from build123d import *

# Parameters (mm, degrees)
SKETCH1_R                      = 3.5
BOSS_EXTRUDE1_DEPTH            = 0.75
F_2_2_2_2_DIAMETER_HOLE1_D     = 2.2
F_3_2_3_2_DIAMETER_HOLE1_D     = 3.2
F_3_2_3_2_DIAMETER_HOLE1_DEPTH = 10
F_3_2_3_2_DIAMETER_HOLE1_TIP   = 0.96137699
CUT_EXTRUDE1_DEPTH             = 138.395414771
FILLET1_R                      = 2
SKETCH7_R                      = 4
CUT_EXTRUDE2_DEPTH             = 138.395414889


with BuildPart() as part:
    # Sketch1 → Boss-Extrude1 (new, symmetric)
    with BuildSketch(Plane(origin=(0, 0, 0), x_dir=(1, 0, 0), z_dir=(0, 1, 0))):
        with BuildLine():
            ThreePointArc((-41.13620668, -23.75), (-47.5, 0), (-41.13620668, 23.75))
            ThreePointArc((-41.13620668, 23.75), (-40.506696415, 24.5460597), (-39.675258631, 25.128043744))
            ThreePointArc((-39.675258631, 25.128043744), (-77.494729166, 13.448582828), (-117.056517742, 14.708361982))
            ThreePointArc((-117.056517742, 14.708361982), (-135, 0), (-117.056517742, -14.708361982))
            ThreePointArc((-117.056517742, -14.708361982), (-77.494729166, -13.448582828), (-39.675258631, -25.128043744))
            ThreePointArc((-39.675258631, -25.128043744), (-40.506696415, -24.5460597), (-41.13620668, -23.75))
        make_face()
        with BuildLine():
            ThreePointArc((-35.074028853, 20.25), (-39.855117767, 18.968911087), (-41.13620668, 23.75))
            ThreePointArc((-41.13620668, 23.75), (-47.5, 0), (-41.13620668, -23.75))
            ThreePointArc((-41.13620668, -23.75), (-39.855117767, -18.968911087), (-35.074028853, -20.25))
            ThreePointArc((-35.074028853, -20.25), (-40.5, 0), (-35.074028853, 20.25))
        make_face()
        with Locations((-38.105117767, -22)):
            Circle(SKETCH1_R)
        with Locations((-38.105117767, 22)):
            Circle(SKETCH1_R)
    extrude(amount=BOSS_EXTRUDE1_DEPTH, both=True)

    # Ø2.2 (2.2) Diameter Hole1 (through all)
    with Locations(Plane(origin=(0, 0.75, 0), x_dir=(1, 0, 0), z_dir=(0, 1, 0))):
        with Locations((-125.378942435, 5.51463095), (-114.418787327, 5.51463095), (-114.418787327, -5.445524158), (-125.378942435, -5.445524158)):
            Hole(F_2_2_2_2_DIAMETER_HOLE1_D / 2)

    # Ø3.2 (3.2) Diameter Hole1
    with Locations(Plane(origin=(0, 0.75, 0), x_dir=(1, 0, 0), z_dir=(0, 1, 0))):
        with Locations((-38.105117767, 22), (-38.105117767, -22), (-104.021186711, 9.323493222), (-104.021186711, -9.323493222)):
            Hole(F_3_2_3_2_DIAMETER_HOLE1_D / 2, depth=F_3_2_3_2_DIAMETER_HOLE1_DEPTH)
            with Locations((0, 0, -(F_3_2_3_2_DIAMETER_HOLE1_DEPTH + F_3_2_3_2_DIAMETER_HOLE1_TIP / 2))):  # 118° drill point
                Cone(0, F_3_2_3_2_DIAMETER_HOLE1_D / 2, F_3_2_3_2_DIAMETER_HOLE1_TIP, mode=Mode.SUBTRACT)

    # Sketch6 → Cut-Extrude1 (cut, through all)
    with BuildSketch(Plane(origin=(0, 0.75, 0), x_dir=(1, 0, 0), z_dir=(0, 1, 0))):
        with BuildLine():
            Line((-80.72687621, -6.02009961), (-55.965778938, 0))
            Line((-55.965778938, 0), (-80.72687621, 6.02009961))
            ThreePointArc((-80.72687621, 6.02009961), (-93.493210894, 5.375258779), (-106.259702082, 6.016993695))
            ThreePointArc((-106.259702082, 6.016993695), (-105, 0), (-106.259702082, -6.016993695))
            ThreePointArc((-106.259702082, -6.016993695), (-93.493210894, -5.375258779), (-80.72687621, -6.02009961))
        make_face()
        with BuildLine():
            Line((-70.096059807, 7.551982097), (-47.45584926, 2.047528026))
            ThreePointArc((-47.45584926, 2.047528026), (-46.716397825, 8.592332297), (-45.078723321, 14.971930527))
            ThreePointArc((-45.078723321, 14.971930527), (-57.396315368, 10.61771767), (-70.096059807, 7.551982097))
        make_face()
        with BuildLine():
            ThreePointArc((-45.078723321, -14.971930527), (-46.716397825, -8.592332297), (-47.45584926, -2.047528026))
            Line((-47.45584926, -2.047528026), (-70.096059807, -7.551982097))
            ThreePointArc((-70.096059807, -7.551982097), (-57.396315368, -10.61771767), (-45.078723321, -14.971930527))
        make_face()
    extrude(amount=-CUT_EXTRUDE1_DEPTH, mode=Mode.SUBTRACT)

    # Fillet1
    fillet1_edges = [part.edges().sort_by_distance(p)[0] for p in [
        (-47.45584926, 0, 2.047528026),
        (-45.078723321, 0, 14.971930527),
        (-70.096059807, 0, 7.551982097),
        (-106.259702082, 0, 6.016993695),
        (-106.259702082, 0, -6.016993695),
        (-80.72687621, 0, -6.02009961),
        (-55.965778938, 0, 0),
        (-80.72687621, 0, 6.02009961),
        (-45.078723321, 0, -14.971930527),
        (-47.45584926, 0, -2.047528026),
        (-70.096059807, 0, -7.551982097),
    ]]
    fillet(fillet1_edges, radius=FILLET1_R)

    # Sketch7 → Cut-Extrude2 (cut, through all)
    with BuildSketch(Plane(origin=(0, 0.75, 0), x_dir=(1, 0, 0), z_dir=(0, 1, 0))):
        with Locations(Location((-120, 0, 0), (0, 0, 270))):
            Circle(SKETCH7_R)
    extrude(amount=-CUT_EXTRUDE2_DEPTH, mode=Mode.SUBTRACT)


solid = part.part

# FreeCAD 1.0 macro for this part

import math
import FreeCAD as App
import Part
import Sketcher
from FreeCAD import Vector
Q = App.Units.Quantity


def edges_at(feature, points):
    """Names of the edges that pass closest to the given points."""
    edges = feature.Shape.Edges
    near = lambda p: min(range(len(edges)), key=lambda i: edges[i].distToShape(Part.Vertex(*p))[0])
    return sorted({f"Edge{near(p) + 1}" for p in points})

doc = App.newDocument("Part")
body = doc.addObject("PartDesign::Body", "Body")

# Sketch on XZ plane
sketch1 = doc.addObject("Sketcher::SketchObject", "Sketch")
body.addObject(sketch1)
sketch1.AttachmentSupport = (doc.XZ_Plane, [""])
sketch1.MapMode = "FlatFace"
sketch1.addGeometry(Part.ArcOfCircle(Part.Circle(Vector(-93.50866, -132.375258, 0), Vector(0, 0, 1), 120), math.radians(63.345355), math.radians(101.316711)), False)
sketch1.addGeometry(Part.ArcOfCircle(Part.Circle(Vector(-120, 0, 0), Vector(0, 0, 1), 15), math.radians(78.683289), math.radians(281.316711)), False)
sketch1.addGeometry(Part.ArcOfCircle(Part.Circle(Vector(-93.50866, 132.375258, 0), Vector(0, 0, 1), 120), math.radians(-101.316711), math.radians(-63.345355)), False)
sketch1.addGeometry(Part.ArcOfCircle(Part.Circle(Vector(-38.105118, 22, 0), Vector(0, 0, 1), 3.5), math.radians(-30), math.radians(116.654645)), False)
sketch1.addGeometry(Part.ArcOfCircle(Part.Circle(Vector(0, 0, 0), Vector(0, 0, 1), 40.5), math.radians(150), math.radians(210)), False)
sketch1.addGeometry(Part.ArcOfCircle(Part.Circle(Vector(-38.105118, -22, 0), Vector(0, 0, 1), 3.5), math.radians(-116.654645), math.radians(30)), False)
sketch1.addConstraint(Sketcher.Constraint("Tangent", 0, 2, 1, 2))
sketch1.addConstraint(Sketcher.Constraint("Tangent", 1, 1, 2, 1))
sketch1.addConstraint(Sketcher.Constraint("Tangent", 2, 2, 3, 2))
sketch1.addConstraint(Sketcher.Constraint("Tangent", 3, 1, 4, 1))
sketch1.addConstraint(Sketcher.Constraint("Tangent", 4, 2, 5, 2))
sketch1.addConstraint(Sketcher.Constraint("Tangent", 5, 1, 0, 1))
sketch1.addConstraint(Sketcher.Constraint("Coincident", 4, 3, -1, 1))
sketch1.addConstraint(Sketcher.Constraint("Equal", 0, 2))
sketch1.addConstraint(Sketcher.Constraint("Equal", 3, 5))
sketch1.addConstraint(Sketcher.Constraint("Symmetric", 0, 3, 2, 3, -1))
sketch1.addConstraint(Sketcher.Constraint("Radius", 0, Q("120 mm")))
sketch1.addConstraint(Sketcher.Constraint("Radius", 1, Q("15 mm")))
sketch1.addConstraint(Sketcher.Constraint("Radius", 3, Q("3.5 mm")))
sketch1.addConstraint(Sketcher.Constraint("Radius", 4, Q("40.5 mm")))
sketch1.addConstraint(Sketcher.Constraint("DistanceX", 1, 3, -1, 1, Q("120 mm")))
sketch1.addConstraint(Sketcher.Constraint("DistanceY", -1, 1, 3, 3, Q("22 mm")))
pad1 = doc.addObject("PartDesign::Pad", "Pad")
body.addObject(pad1)
pad1.Profile = sketch1
pad1.Length = 1.5
pad1.Midplane = True

# Sketch on XZ plane
sketch2 = doc.addObject("Sketcher::SketchObject", "Sketch001")
body.addObject(sketch2)
sketch2.AttachmentSupport = (doc.XZ_Plane, [""])
sketch2.MapMode = "FlatFace"
sketch2.AttachmentOffset = App.Placement(Vector(0, 0, -0.75), App.Rotation())
sketch2.addGeometry(Part.Circle(Vector(-125.378942, -5.514631, 0), Vector(0, 0, 1), 1.1), False)
sketch2.addGeometry(Part.Circle(Vector(-114.418787, -5.514631, 0), Vector(0, 0, 1), 1.1), False)
sketch2.addGeometry(Part.Circle(Vector(-114.418787, 5.445524, 0), Vector(0, 0, 1), 1.1), False)
sketch2.addGeometry(Part.Circle(Vector(-125.378942, 5.445524, 0), Vector(0, 0, 1), 1.1), False)
sketch2.addConstraint(Sketcher.Constraint("Equal", 0, 1))
sketch2.addConstraint(Sketcher.Constraint("Equal", 1, 2))
sketch2.addConstraint(Sketcher.Constraint("Equal", 2, 3))
sketch2.addConstraint(Sketcher.Constraint("Horizontal", 0, 3, 1, 3))
sketch2.addConstraint(Sketcher.Constraint("Horizontal", 2, 3, 3, 3))
sketch2.addConstraint(Sketcher.Constraint("Vertical", 1, 3, 2, 3))
sketch2.addConstraint(Sketcher.Constraint("Vertical", 0, 3, 3, 3))
sketch2.addConstraint(Sketcher.Constraint("Diameter", 0, Q("2.2 mm")))
sketch2.addConstraint(Sketcher.Constraint("DistanceY", 0, 3, -1, 1, Q("5.514631 mm")))
sketch2.addConstraint(Sketcher.Constraint("DistanceX", 0, 3, -1, 1, Q("125.378942 mm")))
sketch2.addConstraint(Sketcher.Constraint("DistanceX", 1, 3, -1, 1, Q("114.418787 mm")))
sketch2.addConstraint(Sketcher.Constraint("DistanceY", -1, 1, 2, 3, Q("5.445524 mm")))
doc.recompute()
hole = doc.addObject("PartDesign::Hole", "Hole")
body.addObject(hole)
hole.Profile = sketch2
hole.ThreadType = "None"
hole.Diameter = 2.2
hole.DepthType = "ThroughAll"
hole.Reversed = True

# Sketch on XZ plane
sketch3 = doc.addObject("Sketcher::SketchObject", "Sketch002")
body.addObject(sketch3)
sketch3.AttachmentSupport = (doc.XZ_Plane, [""])
sketch3.MapMode = "FlatFace"
sketch3.AttachmentOffset = App.Placement(Vector(0, 0, -0.75), App.Rotation())
sketch3.addGeometry(Part.Circle(Vector(-38.105118, -22, 0), Vector(0, 0, 1), 1.6), False)
sketch3.addGeometry(Part.Circle(Vector(-38.105118, 22, 0), Vector(0, 0, 1), 1.6), False)
sketch3.addGeometry(Part.Circle(Vector(-104.021187, -9.323493, 0), Vector(0, 0, 1), 1.6), False)
sketch3.addGeometry(Part.Circle(Vector(-104.021187, 9.323493, 0), Vector(0, 0, 1), 1.6), False)
sketch3.addConstraint(Sketcher.Constraint("Equal", 0, 1))
sketch3.addConstraint(Sketcher.Constraint("Equal", 1, 2))
sketch3.addConstraint(Sketcher.Constraint("Equal", 2, 3))
sketch3.addConstraint(Sketcher.Constraint("Symmetric", 0, 3, 1, 3, -1))
sketch3.addConstraint(Sketcher.Constraint("Symmetric", 2, 3, 3, 3, -1))
sketch3.addConstraint(Sketcher.Constraint("Diameter", 0, Q("3.2 mm")))
sketch3.addConstraint(Sketcher.Constraint("DistanceY", 0, 3, -1, 1, Q("22 mm")))
sketch3.addConstraint(Sketcher.Constraint("DistanceX", 2, 3, 0, 3, Q("65.916069 mm")))
sketch3.addConstraint(Sketcher.Constraint("DistanceX", 0, 3, -1, 1, Q("38.105118 mm")))
sketch3.addConstraint(Sketcher.Constraint("DistanceY", 2, 3, -1, 1, Q("9.323493 mm")))
doc.recompute()
hole2 = doc.addObject("PartDesign::Hole", "Hole001")
body.addObject(hole2)
hole2.Profile = sketch3
hole2.ThreadType = "None"
hole2.Diameter = 3.2
hole2.DepthType = "Dimension"
hole2.Depth = 10
hole2.DrillPoint = "Angled"
hole2.DrillPointAngle = 118
hole2.Reversed = True

# Sketch on XZ plane
sketch4 = doc.addObject("Sketcher::SketchObject", "Sketch003")
body.addObject(sketch4)
sketch4.AttachmentSupport = (doc.XZ_Plane, [""])
sketch4.MapMode = "FlatFace"
sketch4.AttachmentOffset = App.Placement(Vector(0, 0, -0.75), App.Rotation())
sketch4.addGeometry(Part.LineSegment(Vector(-80.726876, 6.0201, 0), Vector(-55.965779, 0, 0)), False)
sketch4.addGeometry(Part.LineSegment(Vector(-55.965779, 0, 0), Vector(-80.726876, -6.0201, 0)), False)
sketch4.addGeometry(Part.ArcOfCircle(Part.Circle(Vector(-93.50866, -132.375258, 0), Vector(0, 0, 1), 127), math.radians(84.223746), math.radians(95.762315)), False)
sketch4.addGeometry(Part.ArcOfCircle(Part.Circle(Vector(-120, 0, 0), Vector(0, 0, 1), 15), math.radians(-23.649021), math.radians(23.649021)), False)
sketch4.addGeometry(Part.ArcOfCircle(Part.Circle(Vector(-93.50866, 132.375258, 0), Vector(0, 0, 1), 127), math.radians(-95.762315), math.radians(-84.223746)), False)
sketch4.addGeometry(Part.LineSegment(Vector(-70.09606, -7.551982, 0), Vector(-47.455849, -2.047528, 0)), False)
sketch4.addGeometry(Part.ArcOfCircle(Part.Circle(Vector(0, 0, 0), Vector(0, 0, 1), 47.5), math.radians(-177.529451), math.radians(-161.6272)), False)
sketch4.addGeometry(Part.ArcOfCircle(Part.Circle(Vector(-93.50866, -132.375258, 0), Vector(0, 0, 1), 127), math.radians(67.583409), math.radians(79.376693)), False)
sketch4.addGeometry(Part.ArcOfCircle(Part.Circle(Vector(0, 0, 0), Vector(0, 0, 1), 47.5), math.radians(161.6272), math.radians(177.529451)), False)
sketch4.addGeometry(Part.LineSegment(Vector(-47.455849, 2.047528, 0), Vector(-70.09606, 7.551982, 0)), False)
sketch4.addGeometry(Part.ArcOfCircle(Part.Circle(Vector(-93.50866, 132.375258, 0), Vector(0, 0, 1), 127), math.radians(-79.376693), math.radians(-67.583409)), False)
sketch4.addConstraint(Sketcher.Constraint("Coincident", 0, 2, 1, 1))
sketch4.addConstraint(Sketcher.Constraint("Coincident", 1, 2, 2, 1))
sketch4.addConstraint(Sketcher.Constraint("Coincident", 2, 2, 3, 1))
sketch4.addConstraint(Sketcher.Constraint("Coincident", 3, 2, 4, 1))
sketch4.addConstraint(Sketcher.Constraint("Coincident", 4, 2, 0, 1))
sketch4.addConstraint(Sketcher.Constraint("Coincident", 5, 2, 6, 1))
sketch4.addConstraint(Sketcher.Constraint("Coincident", 6, 2, 7, 1))
sketch4.addConstraint(Sketcher.Constraint("Coincident", 7, 2, 5, 1))
sketch4.addConstraint(Sketcher.Constraint("Coincident", 8, 2, 9, 1))
sketch4.addConstraint(Sketcher.Constraint("Coincident", 9, 2, 10, 1))
sketch4.addConstraint(Sketcher.Constraint("Coincident", 10, 2, 8, 1))
sketch4.addConstraint(Sketcher.Constraint("Coincident", 6, 3, -1, 1))
sketch4.addConstraint(Sketcher.Constraint("Coincident", 8, 3, -1, 1))
sketch4.addConstraint(Sketcher.Constraint("Coincident", 7, 3, 2, 3))
sketch4.addConstraint(Sketcher.Constraint("Coincident", 10, 3, 4, 3))
sketch4.addConstraint(Sketcher.Constraint("Equal", 2, 4))
sketch4.addConstraint(Sketcher.Constraint("Equal", 4, 7))
sketch4.addConstraint(Sketcher.Constraint("Equal", 6, 8))
sketch4.addConstraint(Sketcher.Constraint("Equal", 7, 10))
sketch4.addConstraint(Sketcher.Constraint("Symmetric", 2, 3, 4, 3, -1))
sketch4.addConstraint(Sketcher.Constraint("PointOnObject", 3, 3, -1))
sketch4.addConstraint(Sketcher.Constraint("PointOnObject", 0, 2, -1))
sketch4.addConstraint(Sketcher.Constraint("Parallel", 1, 5))
sketch4.addConstraint(Sketcher.Constraint("Parallel", 0, 9))
sketch4.addConstraint(Sketcher.Constraint("Vertical", 1, 2, 4, 2))
sketch4.addConstraint(Sketcher.Constraint("Vertical", 5, 2, 8, 2))
sketch4.addConstraint(Sketcher.Constraint("Radius", 2, Q("127 mm")))
sketch4.addConstraint(Sketcher.Constraint("Radius", 3, Q("15 mm")))
sketch4.addConstraint(Sketcher.Constraint("Radius", 6, Q("47.5 mm")))
sketch4.addConstraint(Sketcher.Constraint("DistanceX", 3, 3, -1, 1, Q("120 mm")))
sketch4.addConstraint(Sketcher.Constraint("DistanceY", 1, 2, -1, 1, Q("6.0201 mm")))
sketch4.addConstraint(Sketcher.Constraint("DistanceX", 2, 3, -1, 1, Q("93.50866 mm")))
sketch4.addConstraint(Sketcher.Constraint("DistanceX", 0, 2, -1, 1, Q("55.965779 mm")))
sketch4.addConstraint(Sketcher.Constraint("DistanceX", 5, 2, -1, 1, Q("47.455849 mm")))
sketch4.addConstraint(Sketcher.Constraint("DistanceX", 7, 2, -1, 1, Q("70.09606 mm")))
pocket1 = doc.addObject("PartDesign::Pocket", "Pocket")
body.addObject(pocket1)
pocket1.Profile = sketch4
pocket1.Type = "ThroughAll"
pocket1.Reversed = True
doc.recompute()

fillet = doc.addObject("PartDesign::Fillet", "Fillet")
body.addObject(fillet)
fillet.Base = (pocket1, edges_at(pocket1, [
    (-47.456, 0, 2.048),
    (-45.079, 0, 14.972),
    (-70.096, 0, 7.552),
    (-106.26, 0, 6.017),
    (-106.26, 0, -6.017),
    (-80.727, 0, -6.02),
    (-55.966, 0, 0),
    (-80.727, 0, 6.02),
    (-45.079, 0, -14.972),
    (-47.456, 0, -2.048),
    (-70.096, 0, -7.552),
]))
fillet.Radius = 2

# Sketch on XZ plane
sketch5 = doc.addObject("Sketcher::SketchObject", "Sketch004")
body.addObject(sketch5)
sketch5.AttachmentSupport = (doc.XZ_Plane, [""])
sketch5.MapMode = "FlatFace"
sketch5.AttachmentOffset = App.Placement(Vector(0, 0, -0.75), App.Rotation())
sketch5.addGeometry(Part.Circle(Vector(-120, 0, 0), Vector(0, 0, 1), 4), False)
sketch5.addConstraint(Sketcher.Constraint("PointOnObject", 0, 3, -1))
sketch5.addConstraint(Sketcher.Constraint("Diameter", 0, Q("8 mm")))
sketch5.addConstraint(Sketcher.Constraint("DistanceX", 0, 3, -1, 1, Q("120 mm")))
pocket2 = doc.addObject("PartDesign::Pocket", "Pocket001")
body.addObject(pocket2)
pocket2.Profile = sketch5
pocket2.Type = "ThroughAll"
pocket2.Reversed = True

doc.recompute()
